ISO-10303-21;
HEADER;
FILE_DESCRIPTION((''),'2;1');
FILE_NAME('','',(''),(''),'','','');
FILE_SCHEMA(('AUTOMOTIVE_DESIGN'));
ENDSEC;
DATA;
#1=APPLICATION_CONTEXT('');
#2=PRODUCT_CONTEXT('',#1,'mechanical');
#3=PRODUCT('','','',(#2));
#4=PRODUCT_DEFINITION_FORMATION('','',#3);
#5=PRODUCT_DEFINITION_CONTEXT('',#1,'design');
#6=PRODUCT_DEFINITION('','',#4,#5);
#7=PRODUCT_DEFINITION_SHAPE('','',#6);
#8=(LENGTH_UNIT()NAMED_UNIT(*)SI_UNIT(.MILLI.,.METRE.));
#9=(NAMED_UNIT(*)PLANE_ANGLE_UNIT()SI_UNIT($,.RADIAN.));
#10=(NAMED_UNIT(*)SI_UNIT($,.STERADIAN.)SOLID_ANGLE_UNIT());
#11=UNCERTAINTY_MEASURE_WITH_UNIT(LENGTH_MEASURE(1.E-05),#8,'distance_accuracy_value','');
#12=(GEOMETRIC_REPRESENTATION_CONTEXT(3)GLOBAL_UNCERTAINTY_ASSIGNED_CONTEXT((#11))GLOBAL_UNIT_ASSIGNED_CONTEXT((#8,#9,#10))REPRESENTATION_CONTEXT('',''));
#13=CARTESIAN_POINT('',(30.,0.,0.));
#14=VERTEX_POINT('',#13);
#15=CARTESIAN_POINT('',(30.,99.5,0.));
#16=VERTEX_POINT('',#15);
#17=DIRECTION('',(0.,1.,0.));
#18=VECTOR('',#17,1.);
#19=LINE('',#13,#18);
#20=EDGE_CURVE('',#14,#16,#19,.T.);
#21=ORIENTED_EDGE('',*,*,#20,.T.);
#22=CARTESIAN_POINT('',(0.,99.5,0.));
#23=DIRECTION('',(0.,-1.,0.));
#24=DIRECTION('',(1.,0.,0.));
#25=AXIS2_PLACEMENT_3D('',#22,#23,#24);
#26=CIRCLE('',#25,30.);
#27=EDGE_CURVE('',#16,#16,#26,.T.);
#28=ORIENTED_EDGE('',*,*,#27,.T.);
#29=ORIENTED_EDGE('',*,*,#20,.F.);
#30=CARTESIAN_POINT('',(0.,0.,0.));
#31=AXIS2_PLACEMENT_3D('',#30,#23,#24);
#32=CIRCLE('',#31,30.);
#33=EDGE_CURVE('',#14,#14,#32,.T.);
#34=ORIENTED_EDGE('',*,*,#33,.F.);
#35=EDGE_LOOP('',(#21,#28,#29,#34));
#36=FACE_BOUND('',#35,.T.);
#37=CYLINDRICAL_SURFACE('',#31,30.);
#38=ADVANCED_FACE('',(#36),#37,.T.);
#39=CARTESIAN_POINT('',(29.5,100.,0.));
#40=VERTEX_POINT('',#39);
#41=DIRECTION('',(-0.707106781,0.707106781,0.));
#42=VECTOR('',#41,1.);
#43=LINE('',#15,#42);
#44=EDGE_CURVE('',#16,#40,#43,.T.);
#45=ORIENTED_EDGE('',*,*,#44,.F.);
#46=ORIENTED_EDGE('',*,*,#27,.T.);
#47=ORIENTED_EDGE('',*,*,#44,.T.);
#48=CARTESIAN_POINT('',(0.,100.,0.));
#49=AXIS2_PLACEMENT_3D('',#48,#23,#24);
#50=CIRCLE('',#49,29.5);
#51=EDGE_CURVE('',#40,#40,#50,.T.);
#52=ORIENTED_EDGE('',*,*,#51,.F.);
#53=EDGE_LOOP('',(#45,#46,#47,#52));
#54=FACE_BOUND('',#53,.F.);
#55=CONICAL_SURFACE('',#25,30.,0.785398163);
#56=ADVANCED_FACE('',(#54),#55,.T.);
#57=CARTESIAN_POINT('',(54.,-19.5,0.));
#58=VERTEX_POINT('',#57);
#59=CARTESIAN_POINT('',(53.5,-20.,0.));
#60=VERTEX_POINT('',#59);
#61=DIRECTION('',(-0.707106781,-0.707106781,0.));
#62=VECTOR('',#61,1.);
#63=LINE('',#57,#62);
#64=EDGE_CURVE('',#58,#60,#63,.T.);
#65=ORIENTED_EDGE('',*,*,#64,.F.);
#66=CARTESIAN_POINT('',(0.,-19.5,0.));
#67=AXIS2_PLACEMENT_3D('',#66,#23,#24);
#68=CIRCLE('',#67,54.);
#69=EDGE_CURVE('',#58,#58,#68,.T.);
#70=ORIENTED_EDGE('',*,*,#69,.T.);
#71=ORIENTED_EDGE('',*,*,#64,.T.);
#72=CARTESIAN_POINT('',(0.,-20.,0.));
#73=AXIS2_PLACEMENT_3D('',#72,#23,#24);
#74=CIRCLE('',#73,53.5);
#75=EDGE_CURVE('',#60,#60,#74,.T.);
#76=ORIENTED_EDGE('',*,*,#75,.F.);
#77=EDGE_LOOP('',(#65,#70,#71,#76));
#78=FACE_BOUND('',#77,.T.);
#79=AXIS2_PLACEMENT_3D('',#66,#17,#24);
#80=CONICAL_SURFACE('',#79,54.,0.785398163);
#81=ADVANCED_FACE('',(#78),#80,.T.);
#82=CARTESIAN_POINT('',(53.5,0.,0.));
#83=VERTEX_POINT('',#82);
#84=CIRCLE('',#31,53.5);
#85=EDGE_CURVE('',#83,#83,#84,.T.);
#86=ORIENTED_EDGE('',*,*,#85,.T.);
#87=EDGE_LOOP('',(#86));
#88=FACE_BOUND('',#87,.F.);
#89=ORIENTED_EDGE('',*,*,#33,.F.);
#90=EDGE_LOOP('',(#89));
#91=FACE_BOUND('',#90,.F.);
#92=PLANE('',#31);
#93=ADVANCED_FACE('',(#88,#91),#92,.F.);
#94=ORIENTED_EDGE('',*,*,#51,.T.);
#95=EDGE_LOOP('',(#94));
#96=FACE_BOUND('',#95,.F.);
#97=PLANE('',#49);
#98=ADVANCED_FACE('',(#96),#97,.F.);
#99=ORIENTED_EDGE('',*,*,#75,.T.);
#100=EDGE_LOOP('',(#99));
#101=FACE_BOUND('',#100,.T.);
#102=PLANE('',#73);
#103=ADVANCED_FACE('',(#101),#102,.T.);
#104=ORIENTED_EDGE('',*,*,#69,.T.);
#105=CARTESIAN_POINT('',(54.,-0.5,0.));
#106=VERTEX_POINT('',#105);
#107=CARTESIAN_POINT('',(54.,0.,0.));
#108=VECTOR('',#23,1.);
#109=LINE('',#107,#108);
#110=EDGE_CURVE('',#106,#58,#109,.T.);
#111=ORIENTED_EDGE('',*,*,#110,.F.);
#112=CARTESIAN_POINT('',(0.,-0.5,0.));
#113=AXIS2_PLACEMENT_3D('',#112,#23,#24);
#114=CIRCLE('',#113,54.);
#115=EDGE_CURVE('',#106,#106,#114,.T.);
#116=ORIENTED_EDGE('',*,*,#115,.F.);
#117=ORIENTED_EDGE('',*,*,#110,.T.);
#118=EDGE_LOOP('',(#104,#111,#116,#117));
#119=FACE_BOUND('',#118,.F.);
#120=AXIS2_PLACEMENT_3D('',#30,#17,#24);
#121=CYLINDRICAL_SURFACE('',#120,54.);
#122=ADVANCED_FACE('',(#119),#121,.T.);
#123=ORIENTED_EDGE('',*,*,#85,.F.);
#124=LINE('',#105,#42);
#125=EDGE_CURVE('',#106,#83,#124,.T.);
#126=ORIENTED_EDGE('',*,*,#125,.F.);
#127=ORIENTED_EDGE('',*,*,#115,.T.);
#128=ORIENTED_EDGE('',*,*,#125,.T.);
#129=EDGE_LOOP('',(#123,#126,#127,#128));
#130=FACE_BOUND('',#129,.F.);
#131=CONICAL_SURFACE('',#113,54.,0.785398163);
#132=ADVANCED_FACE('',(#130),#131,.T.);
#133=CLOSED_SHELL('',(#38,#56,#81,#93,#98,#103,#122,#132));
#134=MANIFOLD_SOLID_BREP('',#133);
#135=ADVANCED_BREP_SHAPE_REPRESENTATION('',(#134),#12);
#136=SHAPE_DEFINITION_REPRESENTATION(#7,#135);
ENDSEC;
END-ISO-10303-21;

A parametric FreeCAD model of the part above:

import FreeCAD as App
import Part
import Sketcher

V = App.Vector
Q = App.Units.Quantity


def edges_at(feature, points):
    """Names of the edges that pass closest to the given points."""
    edges = feature.Shape.Edges
    near = lambda p: min(range(len(edges)), key=lambda i: edges[i].distToShape(Part.Vertex(*p))[0])
    return sorted({f"Edge{near(p) + 1}" for p in points})

doc = App.newDocument("Part")
params = doc.addObject("Spreadsheet::Sheet", "Params")
for row, (alias, value) in enumerate([
    ("sketch1_diameter", "108 mm"),
    ("pad1_length", "20 mm"),
    ("sketch2_diameter", "60 mm"),
    ("pad2_length", "100 mm"),
    ("chamfer_size", "0.5 mm"),
], start=1):
    params.set(f"A{row}", alias)
    params.set(f"B{row}", "=" + value)
    params.setAlias(f"B{row}", alias)

body = doc.addObject("PartDesign::Body", "Body")

sketch1 = doc.addObject("Sketcher::SketchObject", "Sketch")
body.addObject(sketch1)
sketch1.AttachmentSupport = (doc.XZ_Plane, [""])
sketch1.MapMode = "FlatFace"
sketch1.addGeometry(Part.Circle(V(0, 0, 0), V(0, 0, 1), 54), False)
sketch1.addConstraint(Sketcher.Constraint("Coincident", 0, 3, -1, 1))
sketch1.addConstraint(Sketcher.Constraint("Diameter", 0, Q("108 mm")))
sketch1.setExpression("Constraints[1]", "Params.sketch1_diameter")
pad1 = doc.addObject("PartDesign::Pad", "Pad")
body.addObject(pad1)
pad1.Profile = sketch1
pad1.setExpression("Length", "Params.pad1_length")

sketch2 = doc.addObject("Sketcher::SketchObject", "Sketch001")
body.addObject(sketch2)
sketch2.AttachmentSupport = (doc.XZ_Plane, [""])
sketch2.MapMode = "FlatFace"
sketch2.addGeometry(Part.Circle(V(0, 0, 0), V(0, 0, 1), 30), False)
sketch2.addConstraint(Sketcher.Constraint("Coincident", 0, 3, -1, 1))
sketch2.addConstraint(Sketcher.Constraint("Diameter", 0, Q("60 mm")))
sketch2.setExpression("Constraints[1]", "Params.sketch2_diameter")
pad2 = doc.addObject("PartDesign::Pad", "Pad001")
body.addObject(pad2)
pad2.Profile = sketch2
pad2.setExpression("Length", "Params.pad2_length")
pad2.Reversed = True
doc.recompute()

chamfer = doc.addObject("PartDesign::Chamfer", "Chamfer")
body.addObject(chamfer)
chamfer.Base = (pad2, edges_at(pad2, [
    (-54, -20, 0),
    (54, -10, 0),
    (-54, 0, 0),
    (-30, 100, 0),
]))
chamfer.setExpression("Size", "Params.chamfer_size")

doc.recompute()
